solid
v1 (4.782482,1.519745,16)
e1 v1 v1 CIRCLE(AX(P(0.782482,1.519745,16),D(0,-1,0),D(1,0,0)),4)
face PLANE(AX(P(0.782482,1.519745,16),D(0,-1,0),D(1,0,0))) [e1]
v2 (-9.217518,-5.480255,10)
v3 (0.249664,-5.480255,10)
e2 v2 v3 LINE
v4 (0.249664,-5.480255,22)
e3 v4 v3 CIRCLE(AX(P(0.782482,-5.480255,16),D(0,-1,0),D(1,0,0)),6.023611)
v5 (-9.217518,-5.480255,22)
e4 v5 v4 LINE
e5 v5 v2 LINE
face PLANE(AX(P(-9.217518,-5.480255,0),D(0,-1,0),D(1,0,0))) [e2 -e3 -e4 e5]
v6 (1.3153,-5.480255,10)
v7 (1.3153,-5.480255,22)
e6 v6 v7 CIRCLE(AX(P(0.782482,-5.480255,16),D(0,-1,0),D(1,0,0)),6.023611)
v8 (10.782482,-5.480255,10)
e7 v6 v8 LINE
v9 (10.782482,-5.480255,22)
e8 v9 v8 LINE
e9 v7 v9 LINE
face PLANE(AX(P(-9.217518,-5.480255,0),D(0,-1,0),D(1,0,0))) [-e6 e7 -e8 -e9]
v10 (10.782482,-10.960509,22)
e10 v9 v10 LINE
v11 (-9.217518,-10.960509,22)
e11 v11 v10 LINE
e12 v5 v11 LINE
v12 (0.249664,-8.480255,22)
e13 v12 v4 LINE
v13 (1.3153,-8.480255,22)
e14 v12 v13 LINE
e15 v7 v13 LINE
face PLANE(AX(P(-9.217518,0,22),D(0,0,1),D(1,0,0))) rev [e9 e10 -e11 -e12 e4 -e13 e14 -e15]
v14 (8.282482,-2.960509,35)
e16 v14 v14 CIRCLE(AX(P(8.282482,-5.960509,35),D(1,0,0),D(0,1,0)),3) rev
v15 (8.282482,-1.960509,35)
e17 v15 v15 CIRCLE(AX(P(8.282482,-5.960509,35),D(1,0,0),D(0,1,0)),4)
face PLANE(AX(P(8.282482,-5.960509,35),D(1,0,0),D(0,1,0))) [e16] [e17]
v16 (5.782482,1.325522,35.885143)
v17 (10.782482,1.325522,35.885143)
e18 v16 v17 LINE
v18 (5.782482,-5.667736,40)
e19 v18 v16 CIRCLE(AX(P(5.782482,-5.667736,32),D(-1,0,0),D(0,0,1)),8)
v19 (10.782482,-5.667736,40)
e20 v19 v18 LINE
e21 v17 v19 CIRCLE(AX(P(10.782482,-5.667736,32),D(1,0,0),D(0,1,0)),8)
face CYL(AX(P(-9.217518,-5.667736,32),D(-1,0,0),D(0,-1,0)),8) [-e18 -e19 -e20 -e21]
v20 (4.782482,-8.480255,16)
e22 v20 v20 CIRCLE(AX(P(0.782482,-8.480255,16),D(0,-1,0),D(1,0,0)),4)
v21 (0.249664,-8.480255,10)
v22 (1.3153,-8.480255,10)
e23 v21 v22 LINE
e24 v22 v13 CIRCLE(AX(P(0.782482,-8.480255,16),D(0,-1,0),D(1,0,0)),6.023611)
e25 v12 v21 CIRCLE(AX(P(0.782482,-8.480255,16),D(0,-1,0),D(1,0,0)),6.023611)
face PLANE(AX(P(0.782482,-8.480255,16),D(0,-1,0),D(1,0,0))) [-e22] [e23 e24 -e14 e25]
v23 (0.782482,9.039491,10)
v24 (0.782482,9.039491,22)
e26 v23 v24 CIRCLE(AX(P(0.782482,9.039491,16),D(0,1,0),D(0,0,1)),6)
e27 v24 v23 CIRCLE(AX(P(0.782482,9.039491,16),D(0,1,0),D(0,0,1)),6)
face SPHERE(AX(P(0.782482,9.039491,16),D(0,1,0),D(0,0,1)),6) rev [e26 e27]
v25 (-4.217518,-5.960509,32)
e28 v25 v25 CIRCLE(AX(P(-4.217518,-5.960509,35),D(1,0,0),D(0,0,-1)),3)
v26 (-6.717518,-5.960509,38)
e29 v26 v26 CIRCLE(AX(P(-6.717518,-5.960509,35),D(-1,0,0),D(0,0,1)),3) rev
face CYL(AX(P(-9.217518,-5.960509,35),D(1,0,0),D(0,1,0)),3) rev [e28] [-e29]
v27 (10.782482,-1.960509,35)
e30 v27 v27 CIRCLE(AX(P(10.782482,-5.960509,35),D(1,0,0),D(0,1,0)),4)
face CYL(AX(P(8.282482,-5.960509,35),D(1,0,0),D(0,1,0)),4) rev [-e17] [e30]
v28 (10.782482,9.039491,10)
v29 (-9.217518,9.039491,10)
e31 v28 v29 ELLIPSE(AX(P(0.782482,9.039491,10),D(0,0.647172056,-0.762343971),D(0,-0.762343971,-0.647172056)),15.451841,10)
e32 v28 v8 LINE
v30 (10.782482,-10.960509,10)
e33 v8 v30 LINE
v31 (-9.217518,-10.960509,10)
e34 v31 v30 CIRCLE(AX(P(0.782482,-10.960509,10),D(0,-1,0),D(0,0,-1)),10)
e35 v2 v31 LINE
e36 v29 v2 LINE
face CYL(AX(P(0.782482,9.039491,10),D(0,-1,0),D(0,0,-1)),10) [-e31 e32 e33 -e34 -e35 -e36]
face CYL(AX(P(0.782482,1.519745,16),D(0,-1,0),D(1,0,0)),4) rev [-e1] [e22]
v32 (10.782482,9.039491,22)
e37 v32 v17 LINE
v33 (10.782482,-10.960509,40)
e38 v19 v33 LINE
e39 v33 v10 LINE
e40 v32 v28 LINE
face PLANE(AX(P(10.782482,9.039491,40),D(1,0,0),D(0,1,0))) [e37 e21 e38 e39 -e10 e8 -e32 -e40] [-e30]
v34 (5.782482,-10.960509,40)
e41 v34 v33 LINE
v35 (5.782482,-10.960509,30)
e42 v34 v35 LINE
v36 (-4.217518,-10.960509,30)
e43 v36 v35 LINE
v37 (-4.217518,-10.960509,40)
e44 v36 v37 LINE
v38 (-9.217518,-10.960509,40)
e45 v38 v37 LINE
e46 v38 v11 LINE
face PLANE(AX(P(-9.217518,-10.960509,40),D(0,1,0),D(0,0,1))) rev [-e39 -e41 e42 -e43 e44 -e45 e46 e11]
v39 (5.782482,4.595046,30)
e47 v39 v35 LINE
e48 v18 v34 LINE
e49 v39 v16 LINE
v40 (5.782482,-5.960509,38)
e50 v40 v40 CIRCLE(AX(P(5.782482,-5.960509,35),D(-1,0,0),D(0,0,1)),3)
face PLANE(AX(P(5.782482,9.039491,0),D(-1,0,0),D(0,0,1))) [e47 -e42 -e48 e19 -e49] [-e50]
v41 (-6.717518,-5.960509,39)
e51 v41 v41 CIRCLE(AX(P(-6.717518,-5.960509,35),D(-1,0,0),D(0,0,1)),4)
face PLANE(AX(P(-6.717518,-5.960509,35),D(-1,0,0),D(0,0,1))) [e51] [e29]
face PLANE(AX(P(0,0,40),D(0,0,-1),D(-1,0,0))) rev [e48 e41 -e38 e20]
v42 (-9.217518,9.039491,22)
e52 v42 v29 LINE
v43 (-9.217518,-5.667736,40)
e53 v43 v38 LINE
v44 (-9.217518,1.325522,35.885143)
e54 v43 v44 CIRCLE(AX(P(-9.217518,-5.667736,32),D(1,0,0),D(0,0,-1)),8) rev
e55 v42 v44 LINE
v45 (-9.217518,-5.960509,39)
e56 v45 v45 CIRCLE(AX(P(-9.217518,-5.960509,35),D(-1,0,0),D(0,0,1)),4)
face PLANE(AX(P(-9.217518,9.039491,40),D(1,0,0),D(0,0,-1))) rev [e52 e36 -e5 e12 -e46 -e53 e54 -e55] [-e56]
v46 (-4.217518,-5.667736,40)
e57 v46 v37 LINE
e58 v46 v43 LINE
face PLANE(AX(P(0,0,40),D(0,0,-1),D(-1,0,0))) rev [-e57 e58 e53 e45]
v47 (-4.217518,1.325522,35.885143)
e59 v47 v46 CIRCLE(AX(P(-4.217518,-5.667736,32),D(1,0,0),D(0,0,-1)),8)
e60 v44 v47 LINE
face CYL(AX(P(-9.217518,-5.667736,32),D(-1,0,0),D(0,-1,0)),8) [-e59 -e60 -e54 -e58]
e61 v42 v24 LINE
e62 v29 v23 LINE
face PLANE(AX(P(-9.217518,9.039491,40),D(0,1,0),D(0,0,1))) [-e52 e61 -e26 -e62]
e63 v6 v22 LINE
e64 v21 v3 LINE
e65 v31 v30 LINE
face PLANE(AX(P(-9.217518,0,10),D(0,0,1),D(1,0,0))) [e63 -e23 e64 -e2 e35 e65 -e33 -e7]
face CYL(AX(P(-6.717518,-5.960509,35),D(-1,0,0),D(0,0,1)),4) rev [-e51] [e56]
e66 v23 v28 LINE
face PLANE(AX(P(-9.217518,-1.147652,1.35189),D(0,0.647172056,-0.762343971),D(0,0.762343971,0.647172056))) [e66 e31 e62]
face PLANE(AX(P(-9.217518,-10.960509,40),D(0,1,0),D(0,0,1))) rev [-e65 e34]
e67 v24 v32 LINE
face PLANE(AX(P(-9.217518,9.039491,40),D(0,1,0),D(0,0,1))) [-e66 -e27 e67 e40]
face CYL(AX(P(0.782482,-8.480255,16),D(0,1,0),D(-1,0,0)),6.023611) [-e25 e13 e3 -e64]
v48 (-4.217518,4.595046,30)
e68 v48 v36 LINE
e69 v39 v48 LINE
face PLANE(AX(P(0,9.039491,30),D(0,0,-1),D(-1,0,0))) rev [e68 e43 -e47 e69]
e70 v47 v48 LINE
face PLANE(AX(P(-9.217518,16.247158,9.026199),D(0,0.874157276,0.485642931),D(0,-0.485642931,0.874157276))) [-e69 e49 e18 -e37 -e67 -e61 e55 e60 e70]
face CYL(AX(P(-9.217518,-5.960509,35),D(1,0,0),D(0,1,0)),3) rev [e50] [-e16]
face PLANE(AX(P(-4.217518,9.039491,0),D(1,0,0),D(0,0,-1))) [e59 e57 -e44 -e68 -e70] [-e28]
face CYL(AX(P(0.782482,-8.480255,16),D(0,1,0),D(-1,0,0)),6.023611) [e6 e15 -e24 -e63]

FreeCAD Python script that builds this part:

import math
import FreeCAD as App
import Part
import Sketcher


def edges_at(feature, points):
    """Names of the edges that pass closest to the given points."""
    edges = feature.Shape.Edges
    near = lambda p: min(range(len(edges)), key=lambda i: edges[i].distToShape(Part.Vertex(*p))[0])
    return sorted({f"Edge{near(p) + 1}" for p in points})

doc = App.newDocument("Part")
params = doc.addObject("Spreadsheet::Sheet", "Params")
for row, (alias, value) in enumerate([
    ("sketch1_width", "20 mm"),
    ("pad1_length", "40 mm"),
    ("sketch2_width", "10 mm"),
    ("sketch2_height", "18 mm"),
    ("sketch2_height2", "12 mm"),
    ("pocket1_length", "20 mm"),
    ("sketch3_radius", "10 mm"),
    ("pocket2_length", "20 mm"),
    ("sketch4_radius", "6 mm"),
    ("groove_angle", "360 deg"),
    ("sketch5_diameter", "6 mm"),
    ("pocket3_length", "20 mm"),
    ("sketch6_diameter", "8 mm"),
    ("pocket4_length", "2.5 mm"),
    ("sketch7_diameter", "8 mm"),
    ("pocket5_length", "2.5 mm"),
    ("fillet_radius", "8 mm"),
    ("pad2_length", "3 mm"),
    ("sketch9_diameter", "8 mm"),
    ("pocket6_length", "10 mm"),
], start=1):
    params.set(f"A{row}", alias)
    params.set(f"B{row}", "=" + value)
    params.setAlias(f"B{row}", alias)

body = doc.addObject("PartDesign::Body", "Body")

# Sketch on XY plane
sketch1 = body.newObject("Sketcher::SketchObject", "Sketch")
sketch1.AttachmentSupport = (doc.getObject("XY_Plane"), [""])
sketch1.MapMode = "FlatFace"
sketch1.addGeometry(Part.LineSegment(App.Vector(-9.217518, 9.039491, 0), App.Vector(-9.217518, -10.960509, 0)), False)
sketch1.addGeometry(Part.LineSegment(App.Vector(-9.217518, -10.960509, 0), App.Vector(10.782482, -10.960509, 0)), False)
sketch1.addGeometry(Part.LineSegment(App.Vector(10.782482, -10.960509, 0), App.Vector(10.782482, 9.039491, 0)), False)
sketch1.addGeometry(Part.LineSegment(App.Vector(10.782482, 9.039491, 0), App.Vector(-9.217518, 9.039491, 0)), False)
sketch1.addConstraint(Sketcher.Constraint("Coincident", 0, 2, 1, 1))
sketch1.addConstraint(Sketcher.Constraint("Coincident", 1, 2, 2, 1))
sketch1.addConstraint(Sketcher.Constraint("Coincident", 2, 2, 3, 1))
sketch1.addConstraint(Sketcher.Constraint("Coincident", 3, 2, 0, 1))
sketch1.addConstraint(Sketcher.Constraint("Vertical", 0))
sketch1.addConstraint(Sketcher.Constraint("Horizontal", 1))
sketch1.addConstraint(Sketcher.Constraint("Vertical", 2))
sketch1.addConstraint(Sketcher.Constraint("Horizontal", 3))
sketch1.addConstraint(Sketcher.Constraint("Equal", 3, 0))
sketch1.addConstraint(Sketcher.Constraint("DistanceX", 1, 1, 1, 2, 20.0))
sketch1.addConstraint(Sketcher.Constraint("DistanceY", 0, 2, -1, 1, 10.960509))
sketch1.addConstraint(Sketcher.Constraint("DistanceX", 0, 2, -1, 1, 9.217518))
sketch1.setExpression("Constraints[9]", "Params.sketch1_width")
pad1 = body.newObject("PartDesign::Pad", "Pad")
pad1.Profile = sketch1
pad1.setExpression("Length", "Params.pad1_length")

# Sketch on YZ plane
sketch2 = body.newObject("Sketcher::SketchObject", "Sketch001")
sketch2.AttachmentSupport = (doc.getObject("YZ_Plane"), [""])
sketch2.MapMode = "FlatFace"
sketch2.AttachmentOffset = App.Placement(App.Vector(0, 0, 10.782482), App.Rotation())
sketch2.addGeometry(Part.LineSegment(App.Vector(9.039491, 40, 0), App.Vector(-0.960509, 40, 0)), False)
sketch2.addGeometry(Part.LineSegment(App.Vector(-0.960509, 40, 0), App.Vector(9.039491, 22, 0)), False)
sketch2.addGeometry(Part.LineSegment(App.Vector(9.039491, 22, 0), App.Vector(9.039491, 40, 0)), False)
sketch2.addGeometry(Part.LineSegment(App.Vector(-5.480255, 22, 0), App.Vector(-10.960509, 22, 0)), False)
sketch2.addGeometry(Part.LineSegment(App.Vector(-10.960509, 22, 0), App.Vector(-10.960509, 10, 0)), False)
sketch2.addGeometry(Part.LineSegment(App.Vector(-10.960509, 10, 0), App.Vector(-5.480255, 10, 0)), False)
sketch2.addGeometry(Part.LineSegment(App.Vector(-5.480255, 10, 0), App.Vector(-5.480255, 22, 0)), False)
sketch2.addGeometry(Part.LineSegment(App.Vector(9.039491, 10, 0), App.Vector(-2.740127, 0, 0)), False)
sketch2.addGeometry(Part.LineSegment(App.Vector(-2.740127, 0, 0), App.Vector(9.039491, 0, 0)), False)
sketch2.addGeometry(Part.LineSegment(App.Vector(9.039491, 0, 0), App.Vector(9.039491, 10, 0)), False)
sketch2.addConstraint(Sketcher.Constraint("Coincident", 0, 2, 1, 1))
sketch2.addConstraint(Sketcher.Constraint("Coincident", 1, 2, 2, 1))
sketch2.addConstraint(Sketcher.Constraint("Coincident", 2, 2, 0, 1))
sketch2.addConstraint(Sketcher.Constraint("Coincident", 3, 2, 4, 1))
sketch2.addConstraint(Sketcher.Constraint("Coincident", 4, 2, 5, 1))
sketch2.addConstraint(Sketcher.Constraint("Coincident", 5, 2, 6, 1))
sketch2.addConstraint(Sketcher.Constraint("Coincident", 6, 2, 3, 1))
sketch2.addConstraint(Sketcher.Constraint("Coincident", 7, 2, 8, 1))
sketch2.addConstraint(Sketcher.Constraint("Coincident", 8, 2, 9, 1))
sketch2.addConstraint(Sketcher.Constraint("Coincident", 9, 2, 7, 1))
sketch2.addConstraint(Sketcher.Constraint("Horizontal", 0))
sketch2.addConstraint(Sketcher.Constraint("Vertical", 2))
sketch2.addConstraint(Sketcher.Constraint("Horizontal", 3))
sketch2.addConstraint(Sketcher.Constraint("Vertical", 4))
sketch2.addConstraint(Sketcher.Constraint("Horizontal", 5))
sketch2.addConstraint(Sketcher.Constraint("Vertical", 6))
sketch2.addConstraint(Sketcher.Constraint("Horizontal", 8))
sketch2.addConstraint(Sketcher.Constraint("Vertical", 9))
sketch2.addConstraint(Sketcher.Constraint("PointOnObject", 7, 2, -1))
sketch2.addConstraint(Sketcher.Constraint("Horizontal", 1, 2, 3, 2))
sketch2.addConstraint(Sketcher.Constraint("Horizontal", 5, 2, 9, 2))
sketch2.addConstraint(Sketcher.Constraint("Vertical", 2, 2, 8, 2))
sketch2.addConstraint(Sketcher.Constraint("Equal", 0, 9))
sketch2.addConstraint(Sketcher.Constraint("DistanceX", 0, 2, 0, 1, 10.0))
sketch2.addConstraint(Sketcher.Constraint("DistanceY", 2, 1, 2, 2, 18.0))
sketch2.addConstraint(Sketcher.Constraint("DistanceY", 4, 2, 4, 1, 12.0))
sketch2.addConstraint(Sketcher.Constraint("DistanceX", 3, 2, 1, 2, 20.0))
sketch2.addConstraint(Sketcher.Constraint("DistanceX", 8, 1, 8, 2, 11.779618))
sketch2.addConstraint(Sketcher.Constraint("DistanceX", 3, 2, 3, 1, 5.480255))
sketch2.addConstraint(Sketcher.Constraint("DistanceX", 0, 2, -1, 1, 0.960509))
sketch2.setExpression("Constraints[23]", "Params.sketch2_width")
sketch2.setExpression("Constraints[24]", "Params.sketch2_height")
sketch2.setExpression("Constraints[25]", "Params.sketch2_height2")
pocket1 = body.newObject("PartDesign::Pocket", "Pocket")
pocket1.Profile = sketch2
pocket1.setExpression("Length", "Params.pocket1_length")

# Sketch on XZ plane
sketch3 = body.newObject("Sketcher::SketchObject", "Sketch002")
sketch3.AttachmentSupport = (doc.getObject("XZ_Plane"), [""])
sketch3.MapMode = "FlatFace"
sketch3.AttachmentOffset = App.Placement(App.Vector(0, 0, 10.960509), App.Rotation())
sketch3.addGeometry(Part.LineSegment(App.Vector(-9.217518, 0, 0), App.Vector(0.782482, 0, 0)), False)
sketch3.addGeometry(Part.ArcOfCircle(Part.Circle(App.Vector(0.782482, 10, 0), App.Vector(0, 0, 1), 10), math.radians(-180), math.radians(-90)), False)
sketch3.addGeometry(Part.LineSegment(App.Vector(-9.217518, 10, 0), App.Vector(-9.217518, 0, 0)), False)
sketch3.addGeometry(Part.LineSegment(App.Vector(10.782482, 0, 0), App.Vector(10.782482, 10, 0)), False)
sketch3.addGeometry(Part.ArcOfCircle(Part.Circle(App.Vector(0.782482, 10, 0), App.Vector(0, 0, 1), 10), math.radians(-90), math.radians(0)), False)
sketch3.addGeometry(Part.LineSegment(App.Vector(0.782482, 0, 0), App.Vector(10.782482, 0, 0)), False)
sketch3.addGeometry(Part.LineSegment(App.Vector(-4.217518, 40, 0), App.Vector(-4.217518, 30, 0)), False)
sketch3.addGeometry(Part.LineSegment(App.Vector(-4.217518, 30, 0), App.Vector(5.782482, 30, 0)), False)
sketch3.addGeometry(Part.LineSegment(App.Vector(5.782482, 30, 0), App.Vector(5.782482, 40, 0)), False)
sketch3.addGeometry(Part.LineSegment(App.Vector(5.782482, 40, 0), App.Vector(-4.217518, 40, 0)), False)
sketch3.addConstraint(Sketcher.Constraint("Tangent", 0, 2, 1, 2))
sketch3.addConstraint(Sketcher.Constraint("Tangent", 1, 1, 2, 1))
sketch3.addConstraint(Sketcher.Constraint("Coincident", 2, 2, 0, 1))
sketch3.addConstraint(Sketcher.Constraint("Tangent", 3, 2, 4, 2))
sketch3.addConstraint(Sketcher.Constraint("Tangent", 4, 1, 5, 1))
sketch3.addConstraint(Sketcher.Constraint("Coincident", 5, 2, 3, 1))
sketch3.addConstraint(Sketcher.Constraint("Coincident", 6, 2, 7, 1))
sketch3.addConstraint(Sketcher.Constraint("Coincident", 7, 2, 8, 1))
sketch3.addConstraint(Sketcher.Constraint("Coincident", 8, 2, 9, 1))
sketch3.addConstraint(Sketcher.Constraint("Coincident", 9, 2, 6, 1))
sketch3.addConstraint(Sketcher.Constraint("Horizontal", 0))
sketch3.addConstraint(Sketcher.Constraint("Vertical", 2))
sketch3.addConstraint(Sketcher.Constraint("Vertical", 3))
sketch3.addConstraint(Sketcher.Constraint("Horizontal", 5))
sketch3.addConstraint(Sketcher.Constraint("Vertical", 6))
sketch3.addConstraint(Sketcher.Constraint("Horizontal", 7))
sketch3.addConstraint(Sketcher.Constraint("Vertical", 8))
sketch3.addConstraint(Sketcher.Constraint("Horizontal", 9))
sketch3.addConstraint(Sketcher.Constraint("Coincident", 4, 3, 1, 3))
sketch3.addConstraint(Sketcher.Constraint("Equal", 1, 4))
sketch3.addConstraint(Sketcher.Constraint("PointOnObject", 0, 2, -1))
sketch3.addConstraint(Sketcher.Constraint("Equal", 5, 7))
sketch3.addConstraint(Sketcher.Constraint("Equal", 3, 6))
sketch3.addConstraint(Sketcher.Constraint("Radius", 1, 10.0))
sketch3.addConstraint(Sketcher.Constraint("DistanceY", -1, 1, 6, 2, 30.0))
sketch3.addConstraint(Sketcher.Constraint("DistanceX", 6, 2, 1, 3, 5.0))
sketch3.addConstraint(Sketcher.Constraint("DistanceX", -1, 1, 1, 3, 0.782482))
sketch3.setExpression("Constraints[23]", "Params.sketch3_radius")
pocket2 = body.newObject("PartDesign::Pocket", "Pocket001")
pocket2.Profile = sketch3
pocket2.setExpression("Length", "Params.pocket2_length")

# Sketch on XZ plane
sketch4 = body.newObject("Sketcher::SketchObject", "Sketch003")
sketch4.AttachmentSupport = (doc.getObject("XZ_Plane"), [""])
sketch4.MapMode = "FlatFace"
sketch4.AttachmentOffset = App.Placement(App.Vector(0, 0, -9.039491), App.Rotation())
sketch4.addGeometry(Part.LineSegment(App.Vector(6.782482, 16, 0), App.Vector(-5.217518, 16, 0)), False)
sketch4.addGeometry(Part.ArcOfCircle(Part.Circle(App.Vector(0.782482, 16, 0), App.Vector(0, 0, 1), 6), math.radians(0), math.radians(180)), False)
sketch4.addGeometry(Part.LineSegment(App.Vector(-5.217518, 16, 0), App.Vector(6.782482, 16, 0)), True)  # axis
sketch4.addConstraint(Sketcher.Constraint("Coincident", 0, 1, 1, 1))
sketch4.addConstraint(Sketcher.Constraint("Coincident", 1, 2, 0, 2))
sketch4.addConstraint(Sketcher.Constraint("Horizontal", 0))
sketch4.addConstraint(Sketcher.Constraint("Horizontal", 2))
sketch4.addConstraint(Sketcher.Constraint("Coincident", 2, 1, 1, 2))
sketch4.addConstraint(Sketcher.Constraint("Horizontal", 1, 3, 0, 1))
sketch4.addConstraint(Sketcher.Constraint("Equal", 0, 2))
sketch4.addConstraint(Sketcher.Constraint("Radius", 1, 6.0))
sketch4.addConstraint(Sketcher.Constraint("DistanceY", -1, 1, 1, 3, 16.0))
sketch4.addConstraint(Sketcher.Constraint("DistanceX", -1, 1, 1, 3, 0.782482))
sketch4.setExpression("Constraints[7]", "Params.sketch4_radius")
groove = body.newObject("PartDesign::Groove", "Groove")
groove.Profile = sketch4
groove.ReferenceAxis = (sketch4, ["Axis0"])
groove.setExpression("Angle", "Params.groove_angle")

# Sketch on YZ plane
sketch5 = body.newObject("Sketcher::SketchObject", "Sketch004")
sketch5.AttachmentSupport = (doc.getObject("YZ_Plane"), [""])
sketch5.MapMode = "FlatFace"
sketch5.AttachmentOffset = App.Placement(App.Vector(0, 0, 10.782482), App.Rotation())
sketch5.addGeometry(Part.Circle(App.Vector(-5.960509, 35, 0), App.Vector(0, 0, 1), 3), False)
sketch5.addConstraint(Sketcher.Constraint("Diameter", 0, 6.0))
sketch5.addConstraint(Sketcher.Constraint("DistanceY", -1, 1, 0, 3, 35.0))
sketch5.addConstraint(Sketcher.Constraint("DistanceX", 0, 3, -1, 1, 5.960509))
sketch5.setExpression("Constraints[0]", "Params.sketch5_diameter")
pocket3 = body.newObject("PartDesign::Pocket", "Pocket002")
pocket3.Profile = sketch5
pocket3.setExpression("Length", "Params.pocket3_length")

# Sketch on YZ plane
sketch6 = body.newObject("Sketcher::SketchObject", "Sketch005")
sketch6.AttachmentSupport = (doc.getObject("YZ_Plane"), [""])
sketch6.MapMode = "FlatFace"
sketch6.AttachmentOffset = App.Placement(App.Vector(0, 0, 10.782482), App.Rotation())
sketch6.addGeometry(Part.Circle(App.Vector(-5.960509, 35, 0), App.Vector(0, 0, 1), 4), False)
sketch6.addConstraint(Sketcher.Constraint("Diameter", 0, 8.0))
sketch6.addConstraint(Sketcher.Constraint("DistanceY", -1, 1, 0, 3, 35.0))
sketch6.addConstraint(Sketcher.Constraint("DistanceX", 0, 3, -1, 1, 5.960509))
sketch6.setExpression("Constraints[0]", "Params.sketch6_diameter")
pocket4 = body.newObject("PartDesign::Pocket", "Pocket003")
pocket4.Profile = sketch6
pocket4.setExpression("Length", "Params.pocket4_length")

# Sketch on YZ plane
sketch7 = body.newObject("Sketcher::SketchObject", "Sketch006")
sketch7.AttachmentSupport = (doc.getObject("YZ_Plane"), [""])
sketch7.MapMode = "FlatFace"
sketch7.AttachmentOffset = App.Placement(App.Vector(0, 0, -6.717518), App.Rotation())
sketch7.addGeometry(Part.Circle(App.Vector(-5.960509, 35, 0), App.Vector(0, 0, 1), 4), False)
sketch7.addConstraint(Sketcher.Constraint("Diameter", 0, 8.0))
sketch7.addConstraint(Sketcher.Constraint("DistanceY", -1, 1, 0, 3, 35.0))
sketch7.addConstraint(Sketcher.Constraint("DistanceX", 0, 3, -1, 1, 5.960509))
sketch7.setExpression("Constraints[0]", "Params.sketch7_diameter")
pocket5 = body.newObject("PartDesign::Pocket", "Pocket004")
pocket5.Profile = sketch7
pocket5.setExpression("Length", "Params.pocket5_length")
doc.recompute()

fillet = body.newObject("PartDesign::Fillet", "Fillet")
fillet.Base = (pocket5, edges_at(pocket5, [(-6.718, -0.961, 40), (8.282, -0.961, 40)]))
fillet.setExpression("Radius", "Params.fillet_radius")

# Sketch on XZ plane
sketch8 = body.newObject("Sketcher::SketchObject", "Sketch007")
sketch8.AttachmentSupport = (doc.getObject("XZ_Plane"), [""])
sketch8.MapMode = "FlatFace"
sketch8.AttachmentOffset = App.Placement(App.Vector(0, 0, 5.480255), App.Rotation())
sketch8.addGeometry(Part.Circle(App.Vector(0.782482, 16, 0), App.Vector(0, 0, 1), 6.023611), False)
sketch8.addConstraint(Sketcher.Constraint("DistanceY", -1, 1, 0, 3, 16.0))
sketch8.addConstraint(Sketcher.Constraint("Diameter", 0, 12.047223))
sketch8.addConstraint(Sketcher.Constraint("DistanceX", -1, 1, 0, 3, 0.782482))
pad2 = body.newObject("PartDesign::Pad", "Pad001")
pad2.Profile = sketch8
pad2.setExpression("Length", "Params.pad2_length")

# Sketch on XZ plane
sketch9 = body.newObject("Sketcher::SketchObject", "Sketch008")
sketch9.AttachmentSupport = (doc.getObject("XZ_Plane"), [""])
sketch9.MapMode = "FlatFace"
sketch9.AttachmentOffset = App.Placement(App.Vector(0, 0, 8.480255), App.Rotation())
sketch9.addGeometry(Part.Circle(App.Vector(0.782482, 16, 0), App.Vector(0, 0, 1), 4), False)
sketch9.addConstraint(Sketcher.Constraint("Diameter", 0, 8.0))
sketch9.addConstraint(Sketcher.Constraint("DistanceY", -1, 1, 0, 3, 16.0))
sketch9.addConstraint(Sketcher.Constraint("DistanceX", -1, 1, 0, 3, 0.782482))
sketch9.setExpression("Constraints[0]", "Params.sketch9_diameter")
pocket6 = body.newObject("PartDesign::Pocket", "Pocket005")
pocket6.Profile = sketch9
pocket6.setExpression("Length", "Params.pocket6_length")

doc.recompute()
